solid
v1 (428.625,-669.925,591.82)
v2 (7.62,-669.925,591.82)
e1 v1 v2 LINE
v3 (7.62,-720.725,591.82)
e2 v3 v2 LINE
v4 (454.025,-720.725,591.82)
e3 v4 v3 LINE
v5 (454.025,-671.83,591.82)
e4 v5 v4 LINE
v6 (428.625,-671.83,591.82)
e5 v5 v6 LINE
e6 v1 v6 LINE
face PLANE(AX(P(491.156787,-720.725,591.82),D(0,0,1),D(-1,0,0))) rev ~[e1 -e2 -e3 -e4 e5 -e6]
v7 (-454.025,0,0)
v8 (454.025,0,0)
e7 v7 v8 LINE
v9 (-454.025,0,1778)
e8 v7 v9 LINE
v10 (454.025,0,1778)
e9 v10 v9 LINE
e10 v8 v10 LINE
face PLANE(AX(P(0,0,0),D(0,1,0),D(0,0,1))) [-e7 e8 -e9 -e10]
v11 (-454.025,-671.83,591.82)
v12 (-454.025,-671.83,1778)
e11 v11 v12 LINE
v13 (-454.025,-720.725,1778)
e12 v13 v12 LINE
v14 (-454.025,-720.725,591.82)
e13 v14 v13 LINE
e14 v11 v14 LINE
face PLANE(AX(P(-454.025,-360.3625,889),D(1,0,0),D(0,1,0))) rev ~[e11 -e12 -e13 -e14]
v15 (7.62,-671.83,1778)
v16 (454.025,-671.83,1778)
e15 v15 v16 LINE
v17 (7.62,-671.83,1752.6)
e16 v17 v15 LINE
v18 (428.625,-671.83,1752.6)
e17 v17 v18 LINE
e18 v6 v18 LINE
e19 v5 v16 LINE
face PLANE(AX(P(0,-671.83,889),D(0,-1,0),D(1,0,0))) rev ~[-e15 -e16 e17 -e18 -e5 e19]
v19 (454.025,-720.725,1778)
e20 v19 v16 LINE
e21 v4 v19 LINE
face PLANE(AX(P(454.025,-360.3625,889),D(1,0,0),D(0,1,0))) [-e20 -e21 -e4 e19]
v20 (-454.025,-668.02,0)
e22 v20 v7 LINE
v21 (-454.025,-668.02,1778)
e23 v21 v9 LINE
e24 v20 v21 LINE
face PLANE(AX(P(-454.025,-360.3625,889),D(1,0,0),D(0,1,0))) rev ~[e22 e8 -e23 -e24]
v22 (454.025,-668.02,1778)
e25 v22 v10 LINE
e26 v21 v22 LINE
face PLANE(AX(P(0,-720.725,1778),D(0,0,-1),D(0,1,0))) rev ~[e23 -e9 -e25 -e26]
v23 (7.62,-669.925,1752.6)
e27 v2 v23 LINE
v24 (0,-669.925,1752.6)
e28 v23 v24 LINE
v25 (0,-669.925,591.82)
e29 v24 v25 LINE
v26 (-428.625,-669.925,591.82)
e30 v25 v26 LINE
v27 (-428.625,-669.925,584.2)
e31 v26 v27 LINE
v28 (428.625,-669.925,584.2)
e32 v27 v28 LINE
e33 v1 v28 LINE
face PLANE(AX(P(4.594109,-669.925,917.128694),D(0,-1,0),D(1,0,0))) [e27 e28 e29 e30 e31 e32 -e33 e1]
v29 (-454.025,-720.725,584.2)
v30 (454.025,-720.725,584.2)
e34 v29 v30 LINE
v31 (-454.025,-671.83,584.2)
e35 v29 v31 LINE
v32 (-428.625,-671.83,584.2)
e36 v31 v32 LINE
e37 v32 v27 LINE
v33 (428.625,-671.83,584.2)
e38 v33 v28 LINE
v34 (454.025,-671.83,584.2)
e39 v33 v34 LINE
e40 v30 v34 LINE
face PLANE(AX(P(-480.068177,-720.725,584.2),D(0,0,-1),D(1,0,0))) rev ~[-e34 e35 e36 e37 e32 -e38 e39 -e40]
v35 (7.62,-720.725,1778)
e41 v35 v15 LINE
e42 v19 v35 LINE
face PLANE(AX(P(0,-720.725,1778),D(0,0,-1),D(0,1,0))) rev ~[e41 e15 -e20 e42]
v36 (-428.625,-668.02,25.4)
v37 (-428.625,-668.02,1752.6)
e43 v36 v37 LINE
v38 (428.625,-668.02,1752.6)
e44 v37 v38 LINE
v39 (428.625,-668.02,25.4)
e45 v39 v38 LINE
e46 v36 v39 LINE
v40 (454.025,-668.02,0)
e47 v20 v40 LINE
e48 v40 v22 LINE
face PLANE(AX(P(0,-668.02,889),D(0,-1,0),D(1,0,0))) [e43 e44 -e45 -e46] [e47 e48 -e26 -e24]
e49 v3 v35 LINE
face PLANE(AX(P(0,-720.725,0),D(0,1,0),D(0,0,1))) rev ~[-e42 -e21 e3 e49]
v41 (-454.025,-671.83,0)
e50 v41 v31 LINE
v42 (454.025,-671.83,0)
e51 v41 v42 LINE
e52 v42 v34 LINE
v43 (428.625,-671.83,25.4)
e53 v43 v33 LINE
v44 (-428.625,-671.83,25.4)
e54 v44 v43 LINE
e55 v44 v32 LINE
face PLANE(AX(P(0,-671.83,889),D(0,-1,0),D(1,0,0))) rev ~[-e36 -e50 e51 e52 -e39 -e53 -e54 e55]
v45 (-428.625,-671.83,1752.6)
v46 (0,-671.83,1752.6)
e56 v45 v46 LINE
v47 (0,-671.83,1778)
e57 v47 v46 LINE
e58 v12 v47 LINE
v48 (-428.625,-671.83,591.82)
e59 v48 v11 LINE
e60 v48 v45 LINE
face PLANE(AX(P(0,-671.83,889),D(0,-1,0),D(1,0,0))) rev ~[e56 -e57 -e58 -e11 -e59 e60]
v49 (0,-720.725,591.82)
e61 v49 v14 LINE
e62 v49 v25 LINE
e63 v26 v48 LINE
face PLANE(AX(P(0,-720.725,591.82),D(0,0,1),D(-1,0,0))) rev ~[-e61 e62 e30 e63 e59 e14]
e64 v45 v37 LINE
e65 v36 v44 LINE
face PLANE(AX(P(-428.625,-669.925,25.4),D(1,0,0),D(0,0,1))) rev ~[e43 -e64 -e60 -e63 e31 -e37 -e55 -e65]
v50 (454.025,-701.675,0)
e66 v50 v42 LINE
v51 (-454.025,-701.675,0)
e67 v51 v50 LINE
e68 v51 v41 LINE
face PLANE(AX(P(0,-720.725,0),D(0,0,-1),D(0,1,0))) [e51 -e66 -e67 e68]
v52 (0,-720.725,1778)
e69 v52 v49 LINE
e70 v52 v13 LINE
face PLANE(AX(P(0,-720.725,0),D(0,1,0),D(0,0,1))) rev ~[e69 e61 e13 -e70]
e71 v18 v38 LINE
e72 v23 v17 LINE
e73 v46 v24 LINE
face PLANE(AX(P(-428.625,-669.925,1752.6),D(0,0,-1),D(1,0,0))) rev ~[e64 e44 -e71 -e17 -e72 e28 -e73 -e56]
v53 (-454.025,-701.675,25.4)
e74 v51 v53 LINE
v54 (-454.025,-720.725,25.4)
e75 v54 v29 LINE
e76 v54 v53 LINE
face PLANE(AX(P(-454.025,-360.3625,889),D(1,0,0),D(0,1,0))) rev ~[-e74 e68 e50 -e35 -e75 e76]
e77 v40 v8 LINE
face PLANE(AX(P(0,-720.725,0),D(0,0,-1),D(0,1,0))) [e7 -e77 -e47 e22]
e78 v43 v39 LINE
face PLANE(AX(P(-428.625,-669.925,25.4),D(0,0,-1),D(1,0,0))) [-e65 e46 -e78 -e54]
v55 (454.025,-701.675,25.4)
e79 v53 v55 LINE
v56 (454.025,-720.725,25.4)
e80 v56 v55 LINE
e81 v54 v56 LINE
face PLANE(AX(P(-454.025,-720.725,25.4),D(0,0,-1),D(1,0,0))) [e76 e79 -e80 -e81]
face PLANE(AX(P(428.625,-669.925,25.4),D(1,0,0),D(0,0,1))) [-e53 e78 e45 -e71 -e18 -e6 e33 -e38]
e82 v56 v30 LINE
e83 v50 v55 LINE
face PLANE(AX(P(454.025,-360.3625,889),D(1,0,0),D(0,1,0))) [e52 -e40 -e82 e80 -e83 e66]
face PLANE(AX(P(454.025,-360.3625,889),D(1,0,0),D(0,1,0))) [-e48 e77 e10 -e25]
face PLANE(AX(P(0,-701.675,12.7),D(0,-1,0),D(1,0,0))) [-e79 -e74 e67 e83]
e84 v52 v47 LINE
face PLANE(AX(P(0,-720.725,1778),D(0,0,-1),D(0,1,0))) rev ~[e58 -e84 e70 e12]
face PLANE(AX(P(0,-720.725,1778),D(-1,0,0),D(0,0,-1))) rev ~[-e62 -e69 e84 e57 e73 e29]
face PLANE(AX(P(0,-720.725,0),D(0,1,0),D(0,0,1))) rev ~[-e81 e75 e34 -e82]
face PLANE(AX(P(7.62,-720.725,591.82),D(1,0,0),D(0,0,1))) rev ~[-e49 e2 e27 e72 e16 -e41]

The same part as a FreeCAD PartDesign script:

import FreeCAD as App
import Part
import Sketcher
Q = App.Units.Quantity

doc = App.newDocument("Part")
body = doc.addObject("PartDesign::Body", "Body")

# Sketch on YZ plane
sketch1 = body.newObject("Sketcher::SketchObject", "Sketch")
sketch1.AttachmentSupport = (doc.getObject("YZ_Plane"), [""])
sketch1.MapMode = "FlatFace"
sketch1.addGeometry([
    Part.LineSegment(App.Vector(-721, 1778, 0), App.Vector(-721, 0, 0)),
    Part.LineSegment(App.Vector(-721, 0, 0), App.Vector(0, 0, 0)),
    Part.LineSegment(App.Vector(0, 0, 0), App.Vector(0, 1778, 0)),
    Part.LineSegment(App.Vector(0, 1778, 0), App.Vector(-721, 1778, 0)),
], False)
sketch1.addConstraint([
    Sketcher.Constraint("Coincident", 0, 2, 1, 1),
    Sketcher.Constraint("Coincident", 1, 2, 2, 1),
    Sketcher.Constraint("Coincident", 2, 2, 3, 1),
    Sketcher.Constraint("Coincident", 3, 2, 0, 1),
    Sketcher.Constraint("Vertical", 0),
    Sketcher.Constraint("Horizontal", 1),
    Sketcher.Constraint("Vertical", 2),
    Sketcher.Constraint("Horizontal", 3),
    Sketcher.Constraint("Coincident", 1, 2, -1, 1),
    Sketcher.Constraint("DistanceY", 0, 2, 0, 1, Q("70 in")),
    Sketcher.Constraint("DistanceX", 1, 1, 1, 2, Q("28.375 in")),
])
pad1 = body.newObject("PartDesign::Pad", "Pad")
pad1.Profile = sketch1
pad1.Length = Q("35.75 in")
pad1.Midplane = True

# Sketch on XZ plane
sketch2 = body.newObject("Sketcher::SketchObject", "Sketch001")
sketch2.AttachmentSupport = (doc.getObject("XZ_Plane"), [""])
sketch2.MapMode = "FlatFace"
sketch2.AttachmentOffset = App.Placement(App.Vector(0, 0, 26.375 * 25.4), App.Rotation())
sketch2.addGeometry([
    Part.LineSegment(App.Vector(-454, 1778, 0), App.Vector(-454, 0, 0)),  # 0
    Part.LineSegment(App.Vector(-454, 0, 0), App.Vector(454, 0, 0)),  # 1
    Part.LineSegment(App.Vector(454, 0, 0), App.Vector(454, 1778, 0)),  # 2
    Part.LineSegment(App.Vector(454, 1778, 0), App.Vector(-454, 1778, 0)),  # 3
    Part.LineSegment(App.Vector(429, 25, 0), App.Vector(-429, 25, 0)),  # 4
    Part.LineSegment(App.Vector(-429, 25, 0), App.Vector(-429, 1753, 0)),  # 5
    Part.LineSegment(App.Vector(-429, 1753, 0), App.Vector(429, 1753, 0)),  # 6
    Part.LineSegment(App.Vector(429, 1753, 0), App.Vector(429, 25, 0)),  # 7
], False)
sketch2.addConstraint([
    Sketcher.Constraint("Coincident", 0, 2, 1, 1),
    Sketcher.Constraint("Coincident", 1, 2, 2, 1),
    Sketcher.Constraint("Coincident", 2, 2, 3, 1),
    Sketcher.Constraint("Coincident", 3, 2, 0, 1),
    Sketcher.Constraint("Coincident", 4, 2, 5, 1),
    Sketcher.Constraint("Coincident", 5, 2, 6, 1),
    Sketcher.Constraint("Coincident", 6, 2, 7, 1),
    Sketcher.Constraint("Coincident", 7, 2, 4, 1),
    Sketcher.Constraint("Vertical", 0),
    Sketcher.Constraint("Horizontal", 1),
    Sketcher.Constraint("Vertical", 2),
    Sketcher.Constraint("Horizontal", 3),
    Sketcher.Constraint("Horizontal", 4),
    Sketcher.Constraint("Vertical", 5),
    Sketcher.Constraint("Horizontal", 6),
    Sketcher.Constraint("Vertical", 7),
    Sketcher.Constraint("Symmetric", 0, 2, 1, 2, -1, 1),
    Sketcher.Constraint("DistanceY", 0, 2, 0, 1, Q("70 in")),
    Sketcher.Constraint("DistanceY", 5, 1, 5, 2, Q("68 in")),
    Sketcher.Constraint("DistanceY", -1, 1, 4, 2, Q("1 in")),
    Sketcher.Constraint("DistanceX", 0, 2, 4, 2, Q("1 in")),
    Sketcher.Constraint("DistanceX", 6, 2, 2, 2, Q("1 in")),
    Sketcher.Constraint("DistanceX", 1, 1, 1, 2, Q("35.75 in")),
])
pocket1 = body.newObject("PartDesign::Pocket", "Pocket")
pocket1.Profile = sketch2
pocket1.Length = Q("0.15 in")
pocket1.Midplane = True

# Sketch on XZ plane
sketch3 = body.newObject("Sketcher::SketchObject", "Sketch002")
sketch3.AttachmentSupport = (doc.getObject("XZ_Plane"), [""])
sketch3.MapMode = "FlatFace"
sketch3.AttachmentOffset = App.Placement(App.Vector(0, 0, 28.375 * 25.4), App.Rotation())
sketch3.addGeometry([
    Part.LineSegment(App.Vector(8, 1778, 0), App.Vector(0, 1778, 0)),  # 0
    Part.LineSegment(App.Vector(0, 1778, 0), App.Vector(0, 592, 0)),  # 1
    Part.LineSegment(App.Vector(0, 592, 0), App.Vector(-480, 592, 0)),  # 2
    Part.LineSegment(App.Vector(-480, 592, 0), App.Vector(-480, 584, 0)),  # 3
    Part.LineSegment(App.Vector(-480, 584, 0), App.Vector(491, 584, 0)),  # 4
    Part.LineSegment(App.Vector(491, 584, 0), App.Vector(491, 592, 0)),  # 5
    Part.LineSegment(App.Vector(491, 592, 0), App.Vector(8, 592, 0)),  # 6
    Part.LineSegment(App.Vector(8, 592, 0), App.Vector(8, 1778, 0)),  # 7
], False)
sketch3.addConstraint([
    Sketcher.Constraint("Coincident", 0, 2, 1, 1),
    Sketcher.Constraint("Coincident", 1, 2, 2, 1),
    Sketcher.Constraint("Coincident", 2, 2, 3, 1),
    Sketcher.Constraint("Coincident", 3, 2, 4, 1),
    Sketcher.Constraint("Coincident", 4, 2, 5, 1),
    Sketcher.Constraint("Coincident", 5, 2, 6, 1),
    Sketcher.Constraint("Coincident", 6, 2, 7, 1),
    Sketcher.Constraint("Coincident", 7, 2, 0, 1),
    Sketcher.Constraint("Horizontal", 0),
    Sketcher.Constraint("Vertical", 1),
    Sketcher.Constraint("Horizontal", 2),
    Sketcher.Constraint("Vertical", 3),
    Sketcher.Constraint("Horizontal", 4),
    Sketcher.Constraint("Vertical", 5),
    Sketcher.Constraint("Horizontal", 6),
    Sketcher.Constraint("Vertical", 7),
    Sketcher.Constraint("PointOnObject", 0, 2, -2),
    Sketcher.Constraint("Horizontal", 2, 2, 5, 2),
    Sketcher.Constraint("Equal", 0, 3),
    Sketcher.Constraint("DistanceX", 0, 2, 0, 1, Q("0.3 in")),
    Sketcher.Constraint("DistanceY", 1, 2, 1, 1, Q("46.7 in")),
    Sketcher.Constraint("DistanceY", -1, 1, 0, 2, Q("70 in")),
    Sketcher.Constraint("DistanceX", 2, 2, 2, 1, 480.068177),
    Sketcher.Constraint("DistanceX", 4, 1, 4, 2, 971.224964),
])
pocket2 = body.newObject("PartDesign::Pocket", "Pocket001")
pocket2.Profile = sketch3
pocket2.Length = Q("2 in")

# Sketch on XZ plane
sketch4 = body.newObject("Sketcher::SketchObject", "Sketch003")
sketch4.AttachmentSupport = (doc.getObject("XZ_Plane"), [""])
sketch4.MapMode = "FlatFace"
sketch4.AttachmentOffset = App.Placement(App.Vector(0, 0, 28.375 * 25.4), App.Rotation())
sketch4.addGeometry([
    Part.LineSegment(App.Vector(-454, 25, 0), App.Vector(-454, 0, 0)),
    Part.LineSegment(App.Vector(-454, 0, 0), App.Vector(454, 0, 0)),
    Part.LineSegment(App.Vector(454, 0, 0), App.Vector(454, 25, 0)),
    Part.LineSegment(App.Vector(454, 25, 0), App.Vector(-454, 25, 0)),
], False)
sketch4.addConstraint([
    Sketcher.Constraint("Coincident", 0, 2, 1, 1),
    Sketcher.Constraint("Coincident", 1, 2, 2, 1),
    Sketcher.Constraint("Coincident", 2, 2, 3, 1),
    Sketcher.Constraint("Coincident", 3, 2, 0, 1),
    Sketcher.Constraint("Vertical", 0),
    Sketcher.Constraint("Horizontal", 1),
    Sketcher.Constraint("Vertical", 2),
    Sketcher.Constraint("Horizontal", 3),
    Sketcher.Constraint("Symmetric", 0, 2, 1, 2, -1, 1),
    Sketcher.Constraint("DistanceY", 0, 2, 0, 1, Q("1 in")),
    Sketcher.Constraint("DistanceX", 1, 1, 1, 2, Q("35.75 in")),
])
pocket3 = body.newObject("PartDesign::Pocket", "Pocket002")
pocket3.Profile = sketch4
pocket3.Length = Q("0.75 in")

doc.recompute()
